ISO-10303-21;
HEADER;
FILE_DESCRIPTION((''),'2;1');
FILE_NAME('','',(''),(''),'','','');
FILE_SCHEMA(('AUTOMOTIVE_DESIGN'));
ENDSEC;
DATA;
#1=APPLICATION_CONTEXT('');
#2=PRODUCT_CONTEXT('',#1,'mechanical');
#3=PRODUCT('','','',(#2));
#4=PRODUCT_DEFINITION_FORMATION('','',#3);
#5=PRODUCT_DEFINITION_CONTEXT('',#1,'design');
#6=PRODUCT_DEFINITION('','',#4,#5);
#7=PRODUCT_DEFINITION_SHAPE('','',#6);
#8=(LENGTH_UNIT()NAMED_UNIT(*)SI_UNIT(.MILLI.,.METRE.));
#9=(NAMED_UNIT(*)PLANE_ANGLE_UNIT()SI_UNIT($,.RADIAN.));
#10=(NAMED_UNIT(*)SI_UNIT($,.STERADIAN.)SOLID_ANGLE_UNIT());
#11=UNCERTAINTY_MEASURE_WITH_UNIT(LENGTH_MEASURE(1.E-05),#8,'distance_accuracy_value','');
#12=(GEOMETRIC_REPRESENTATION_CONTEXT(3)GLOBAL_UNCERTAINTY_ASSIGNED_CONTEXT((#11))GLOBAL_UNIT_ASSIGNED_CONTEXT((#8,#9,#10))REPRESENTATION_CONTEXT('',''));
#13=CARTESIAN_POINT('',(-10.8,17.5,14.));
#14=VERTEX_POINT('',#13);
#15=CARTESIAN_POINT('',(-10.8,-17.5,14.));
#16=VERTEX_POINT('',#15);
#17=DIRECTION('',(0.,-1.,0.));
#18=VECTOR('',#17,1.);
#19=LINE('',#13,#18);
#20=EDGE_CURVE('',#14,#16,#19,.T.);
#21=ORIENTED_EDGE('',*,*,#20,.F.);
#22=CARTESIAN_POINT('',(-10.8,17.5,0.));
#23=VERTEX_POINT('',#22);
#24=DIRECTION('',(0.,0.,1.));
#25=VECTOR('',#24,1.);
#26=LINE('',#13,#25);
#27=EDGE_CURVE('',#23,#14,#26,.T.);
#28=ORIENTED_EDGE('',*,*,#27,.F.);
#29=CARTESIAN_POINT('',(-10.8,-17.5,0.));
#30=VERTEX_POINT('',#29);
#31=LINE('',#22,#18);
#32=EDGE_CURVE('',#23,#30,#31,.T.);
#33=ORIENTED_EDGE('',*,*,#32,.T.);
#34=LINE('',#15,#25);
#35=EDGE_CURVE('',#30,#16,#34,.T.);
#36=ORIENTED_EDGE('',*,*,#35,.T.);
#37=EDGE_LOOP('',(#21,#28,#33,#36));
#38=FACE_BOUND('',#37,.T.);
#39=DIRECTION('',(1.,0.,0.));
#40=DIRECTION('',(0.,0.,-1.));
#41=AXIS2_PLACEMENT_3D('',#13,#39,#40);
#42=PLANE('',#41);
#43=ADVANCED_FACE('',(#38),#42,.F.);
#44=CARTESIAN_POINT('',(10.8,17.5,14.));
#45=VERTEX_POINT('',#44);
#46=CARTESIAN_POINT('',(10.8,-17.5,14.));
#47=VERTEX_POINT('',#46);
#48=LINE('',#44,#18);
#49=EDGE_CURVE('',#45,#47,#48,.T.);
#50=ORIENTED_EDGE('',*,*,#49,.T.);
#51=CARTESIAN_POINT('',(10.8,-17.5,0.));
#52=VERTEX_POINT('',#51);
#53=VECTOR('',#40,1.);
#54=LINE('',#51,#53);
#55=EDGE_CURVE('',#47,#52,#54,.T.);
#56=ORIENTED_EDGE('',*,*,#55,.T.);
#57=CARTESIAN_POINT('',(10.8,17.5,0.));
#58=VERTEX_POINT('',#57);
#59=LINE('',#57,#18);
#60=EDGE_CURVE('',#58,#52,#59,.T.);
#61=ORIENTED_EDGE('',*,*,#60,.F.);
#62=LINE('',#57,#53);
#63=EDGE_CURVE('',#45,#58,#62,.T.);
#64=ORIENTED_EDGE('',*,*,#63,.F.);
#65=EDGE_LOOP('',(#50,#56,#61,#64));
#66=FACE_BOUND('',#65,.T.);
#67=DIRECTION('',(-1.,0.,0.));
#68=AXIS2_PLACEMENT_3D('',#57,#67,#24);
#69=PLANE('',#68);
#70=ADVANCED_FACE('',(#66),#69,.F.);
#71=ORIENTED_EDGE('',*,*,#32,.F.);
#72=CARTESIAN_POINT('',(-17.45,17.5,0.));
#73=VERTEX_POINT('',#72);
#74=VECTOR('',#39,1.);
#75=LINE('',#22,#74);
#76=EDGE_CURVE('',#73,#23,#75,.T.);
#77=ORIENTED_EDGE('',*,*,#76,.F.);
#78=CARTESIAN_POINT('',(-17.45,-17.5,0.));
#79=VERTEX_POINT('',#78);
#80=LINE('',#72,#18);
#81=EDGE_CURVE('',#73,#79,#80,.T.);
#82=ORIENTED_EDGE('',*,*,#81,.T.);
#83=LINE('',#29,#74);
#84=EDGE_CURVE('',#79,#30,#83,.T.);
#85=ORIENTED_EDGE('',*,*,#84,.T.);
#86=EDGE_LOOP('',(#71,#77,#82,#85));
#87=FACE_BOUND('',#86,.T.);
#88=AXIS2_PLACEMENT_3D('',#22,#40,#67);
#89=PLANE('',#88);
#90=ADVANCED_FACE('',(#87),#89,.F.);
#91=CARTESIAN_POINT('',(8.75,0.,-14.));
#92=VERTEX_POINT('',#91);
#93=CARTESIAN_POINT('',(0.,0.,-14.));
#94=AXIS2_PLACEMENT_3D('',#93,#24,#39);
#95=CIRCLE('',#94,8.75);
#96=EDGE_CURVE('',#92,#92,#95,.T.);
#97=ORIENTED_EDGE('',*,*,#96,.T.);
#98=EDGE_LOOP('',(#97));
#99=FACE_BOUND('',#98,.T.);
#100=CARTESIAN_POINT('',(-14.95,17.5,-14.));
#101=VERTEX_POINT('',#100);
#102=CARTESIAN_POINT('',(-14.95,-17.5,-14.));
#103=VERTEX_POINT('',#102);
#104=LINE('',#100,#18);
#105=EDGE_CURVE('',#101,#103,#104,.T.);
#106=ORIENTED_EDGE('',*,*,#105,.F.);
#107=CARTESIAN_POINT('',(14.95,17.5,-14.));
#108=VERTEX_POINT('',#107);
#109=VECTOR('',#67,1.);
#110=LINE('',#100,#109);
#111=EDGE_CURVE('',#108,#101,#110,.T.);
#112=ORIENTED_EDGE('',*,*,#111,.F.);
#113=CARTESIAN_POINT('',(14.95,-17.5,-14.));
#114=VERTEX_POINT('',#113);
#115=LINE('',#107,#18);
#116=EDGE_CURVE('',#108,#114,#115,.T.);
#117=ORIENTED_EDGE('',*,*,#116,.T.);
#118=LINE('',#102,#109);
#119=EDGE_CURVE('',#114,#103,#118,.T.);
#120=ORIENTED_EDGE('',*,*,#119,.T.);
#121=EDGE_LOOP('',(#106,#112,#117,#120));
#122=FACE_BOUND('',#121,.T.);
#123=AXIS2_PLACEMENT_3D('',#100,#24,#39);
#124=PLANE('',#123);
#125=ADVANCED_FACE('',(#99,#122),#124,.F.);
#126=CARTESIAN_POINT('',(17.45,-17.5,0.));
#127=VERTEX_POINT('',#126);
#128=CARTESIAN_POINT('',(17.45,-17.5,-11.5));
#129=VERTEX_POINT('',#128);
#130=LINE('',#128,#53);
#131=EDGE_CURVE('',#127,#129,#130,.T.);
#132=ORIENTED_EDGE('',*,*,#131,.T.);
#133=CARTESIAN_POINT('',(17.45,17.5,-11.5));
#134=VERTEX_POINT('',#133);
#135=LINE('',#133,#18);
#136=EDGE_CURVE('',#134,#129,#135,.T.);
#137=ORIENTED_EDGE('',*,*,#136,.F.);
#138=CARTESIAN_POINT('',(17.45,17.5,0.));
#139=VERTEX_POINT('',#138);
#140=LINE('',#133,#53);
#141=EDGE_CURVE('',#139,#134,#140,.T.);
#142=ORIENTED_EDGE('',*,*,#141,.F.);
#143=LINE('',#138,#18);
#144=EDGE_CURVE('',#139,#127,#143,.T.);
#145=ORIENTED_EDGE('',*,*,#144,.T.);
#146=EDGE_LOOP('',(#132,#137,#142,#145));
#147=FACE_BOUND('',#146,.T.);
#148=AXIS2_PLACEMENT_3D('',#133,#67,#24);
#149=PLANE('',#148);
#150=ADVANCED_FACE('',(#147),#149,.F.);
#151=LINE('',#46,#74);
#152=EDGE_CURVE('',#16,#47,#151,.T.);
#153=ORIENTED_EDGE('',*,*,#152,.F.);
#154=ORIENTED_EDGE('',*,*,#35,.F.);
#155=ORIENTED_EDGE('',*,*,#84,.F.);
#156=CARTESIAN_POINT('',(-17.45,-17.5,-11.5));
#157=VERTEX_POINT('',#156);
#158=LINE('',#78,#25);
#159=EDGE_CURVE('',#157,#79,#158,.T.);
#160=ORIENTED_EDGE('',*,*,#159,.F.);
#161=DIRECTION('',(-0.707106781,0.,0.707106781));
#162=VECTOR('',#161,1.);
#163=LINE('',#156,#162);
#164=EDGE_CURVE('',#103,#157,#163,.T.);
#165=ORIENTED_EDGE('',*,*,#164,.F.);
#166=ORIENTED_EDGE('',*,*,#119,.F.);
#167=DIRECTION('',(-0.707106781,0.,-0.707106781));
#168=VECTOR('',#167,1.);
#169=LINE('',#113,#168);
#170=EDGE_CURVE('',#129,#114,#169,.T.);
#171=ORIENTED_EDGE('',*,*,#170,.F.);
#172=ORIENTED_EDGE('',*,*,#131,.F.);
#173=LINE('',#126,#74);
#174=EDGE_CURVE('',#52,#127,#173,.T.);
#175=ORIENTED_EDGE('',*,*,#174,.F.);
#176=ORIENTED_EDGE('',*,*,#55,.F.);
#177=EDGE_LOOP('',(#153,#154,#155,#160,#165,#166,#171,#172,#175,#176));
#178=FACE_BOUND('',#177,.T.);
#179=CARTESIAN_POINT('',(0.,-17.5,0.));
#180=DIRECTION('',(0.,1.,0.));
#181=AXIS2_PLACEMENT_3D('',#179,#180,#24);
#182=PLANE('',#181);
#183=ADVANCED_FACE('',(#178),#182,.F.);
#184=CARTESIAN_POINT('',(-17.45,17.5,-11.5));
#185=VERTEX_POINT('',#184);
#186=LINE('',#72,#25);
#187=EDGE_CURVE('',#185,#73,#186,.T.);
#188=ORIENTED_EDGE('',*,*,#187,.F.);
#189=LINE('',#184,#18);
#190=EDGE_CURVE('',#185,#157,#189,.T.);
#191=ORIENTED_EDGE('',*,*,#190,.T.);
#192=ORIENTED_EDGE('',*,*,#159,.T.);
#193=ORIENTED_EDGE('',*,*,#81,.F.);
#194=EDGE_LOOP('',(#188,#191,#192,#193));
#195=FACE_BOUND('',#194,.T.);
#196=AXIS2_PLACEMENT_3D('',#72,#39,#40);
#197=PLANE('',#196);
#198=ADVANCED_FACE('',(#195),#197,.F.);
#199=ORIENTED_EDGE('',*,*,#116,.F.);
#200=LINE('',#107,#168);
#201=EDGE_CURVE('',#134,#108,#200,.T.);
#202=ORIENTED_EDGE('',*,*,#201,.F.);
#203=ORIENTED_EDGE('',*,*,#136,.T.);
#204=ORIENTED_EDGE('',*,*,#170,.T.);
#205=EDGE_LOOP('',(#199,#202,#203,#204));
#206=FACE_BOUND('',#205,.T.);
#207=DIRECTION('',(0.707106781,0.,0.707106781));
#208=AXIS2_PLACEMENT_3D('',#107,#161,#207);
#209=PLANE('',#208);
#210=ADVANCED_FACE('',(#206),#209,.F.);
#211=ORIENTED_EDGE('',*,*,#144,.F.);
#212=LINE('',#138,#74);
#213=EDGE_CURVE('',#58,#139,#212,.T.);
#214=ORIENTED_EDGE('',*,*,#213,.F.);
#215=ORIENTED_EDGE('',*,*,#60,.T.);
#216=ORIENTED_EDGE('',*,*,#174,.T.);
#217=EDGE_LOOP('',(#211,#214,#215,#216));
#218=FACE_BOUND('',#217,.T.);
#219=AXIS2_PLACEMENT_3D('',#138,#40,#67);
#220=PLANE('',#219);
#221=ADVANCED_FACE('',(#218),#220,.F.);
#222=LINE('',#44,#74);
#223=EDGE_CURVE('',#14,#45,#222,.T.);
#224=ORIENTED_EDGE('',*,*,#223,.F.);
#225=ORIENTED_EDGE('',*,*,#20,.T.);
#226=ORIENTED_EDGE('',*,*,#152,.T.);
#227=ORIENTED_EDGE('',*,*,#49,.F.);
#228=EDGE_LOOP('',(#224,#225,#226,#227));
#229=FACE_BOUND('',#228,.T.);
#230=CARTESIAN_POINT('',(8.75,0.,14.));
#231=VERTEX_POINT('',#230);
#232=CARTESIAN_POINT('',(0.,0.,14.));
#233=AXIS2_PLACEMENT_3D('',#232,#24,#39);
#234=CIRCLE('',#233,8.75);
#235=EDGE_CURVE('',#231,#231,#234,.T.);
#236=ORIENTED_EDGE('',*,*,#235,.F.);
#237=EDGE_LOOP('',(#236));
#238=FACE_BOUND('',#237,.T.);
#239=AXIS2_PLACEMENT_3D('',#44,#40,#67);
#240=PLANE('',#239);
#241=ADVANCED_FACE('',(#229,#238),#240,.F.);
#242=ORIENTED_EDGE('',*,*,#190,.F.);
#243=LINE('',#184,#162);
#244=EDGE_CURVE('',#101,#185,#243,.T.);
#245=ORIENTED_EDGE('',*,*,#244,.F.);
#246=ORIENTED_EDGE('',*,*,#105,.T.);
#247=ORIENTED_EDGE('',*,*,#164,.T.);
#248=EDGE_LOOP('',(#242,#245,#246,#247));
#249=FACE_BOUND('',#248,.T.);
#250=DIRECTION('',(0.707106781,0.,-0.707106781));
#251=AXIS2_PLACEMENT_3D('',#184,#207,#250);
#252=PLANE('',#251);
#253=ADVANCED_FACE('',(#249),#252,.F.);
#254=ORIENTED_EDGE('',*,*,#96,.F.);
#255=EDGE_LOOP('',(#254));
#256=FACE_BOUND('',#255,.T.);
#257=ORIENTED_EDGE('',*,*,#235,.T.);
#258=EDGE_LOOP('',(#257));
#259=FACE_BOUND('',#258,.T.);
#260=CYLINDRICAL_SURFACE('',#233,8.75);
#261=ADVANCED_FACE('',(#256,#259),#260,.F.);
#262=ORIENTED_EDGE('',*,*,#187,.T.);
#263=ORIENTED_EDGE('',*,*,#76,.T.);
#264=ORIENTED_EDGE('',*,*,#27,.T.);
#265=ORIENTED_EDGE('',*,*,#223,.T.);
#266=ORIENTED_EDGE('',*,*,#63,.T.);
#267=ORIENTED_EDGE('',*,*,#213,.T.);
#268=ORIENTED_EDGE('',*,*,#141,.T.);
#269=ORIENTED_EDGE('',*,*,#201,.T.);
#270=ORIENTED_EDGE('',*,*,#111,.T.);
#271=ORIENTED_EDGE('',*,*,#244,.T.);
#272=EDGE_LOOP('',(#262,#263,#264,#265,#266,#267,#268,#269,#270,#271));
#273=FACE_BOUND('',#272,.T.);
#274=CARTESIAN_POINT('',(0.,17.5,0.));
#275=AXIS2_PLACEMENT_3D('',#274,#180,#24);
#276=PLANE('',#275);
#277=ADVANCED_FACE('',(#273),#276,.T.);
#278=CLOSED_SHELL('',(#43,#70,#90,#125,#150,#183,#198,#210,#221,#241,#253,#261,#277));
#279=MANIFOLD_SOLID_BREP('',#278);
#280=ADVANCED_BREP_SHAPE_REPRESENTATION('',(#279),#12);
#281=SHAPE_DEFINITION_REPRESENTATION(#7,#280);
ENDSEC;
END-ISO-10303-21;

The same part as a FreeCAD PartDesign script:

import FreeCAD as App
import Part
import Sketcher

V = App.Vector
Q = App.Units.Quantity

doc = App.newDocument("Part")
body = doc.addObject("PartDesign::Body", "Body")

sketch1 = doc.addObject("Sketcher::SketchObject", "Sketch")
body.addObject(sketch1)
sketch1.AttachmentSupport = (doc.XZ_Plane, [""])
sketch1.MapMode = "FlatFace"
sketch1.addGeometry(Part.LineSegment(V(-17.4, 0, 0), V(-10.8, 0, 0)), False)
sketch1.addGeometry(Part.LineSegment(V(-10.8, 0, 0), V(-10.8, 14, 0)), False)
sketch1.addGeometry(Part.LineSegment(V(-10.8, 14, 0), V(10.8, 14, 0)), False)
sketch1.addGeometry(Part.LineSegment(V(10.8, 14, 0), V(10.8, 0, 0)), False)
sketch1.addGeometry(Part.LineSegment(V(10.8, 0, 0), V(17.4, 0, 0)), False)
sketch1.addGeometry(Part.LineSegment(V(17.4, 0, 0), V(17.4, -11.5, 0)), False)
sketch1.addGeometry(Part.LineSegment(V(17.4, -11.5, 0), V(14.9, -14, 0)), False)
sketch1.addGeometry(Part.LineSegment(V(14.9, -14, 0), V(-14.9, -14, 0)), False)
sketch1.addGeometry(Part.LineSegment(V(-14.9, -14, 0), V(-17.4, -11.5, 0)), False)
sketch1.addGeometry(Part.LineSegment(V(-17.4, -11.5, 0), V(-17.4, 0, 0)), False)
sketch1.addConstraint(Sketcher.Constraint("Coincident", 0, 2, 1, 1))
sketch1.addConstraint(Sketcher.Constraint("Coincident", 1, 2, 2, 1))
sketch1.addConstraint(Sketcher.Constraint("Coincident", 2, 2, 3, 1))
sketch1.addConstraint(Sketcher.Constraint("Coincident", 3, 2, 4, 1))
sketch1.addConstraint(Sketcher.Constraint("Coincident", 4, 2, 5, 1))
sketch1.addConstraint(Sketcher.Constraint("Coincident", 5, 2, 6, 1))
sketch1.addConstraint(Sketcher.Constraint("Coincident", 6, 2, 7, 1))
sketch1.addConstraint(Sketcher.Constraint("Coincident", 7, 2, 8, 1))
sketch1.addConstraint(Sketcher.Constraint("Coincident", 8, 2, 9, 1))
sketch1.addConstraint(Sketcher.Constraint("Coincident", 9, 2, 0, 1))
sketch1.addConstraint(Sketcher.Constraint("Horizontal", 0))
sketch1.addConstraint(Sketcher.Constraint("Vertical", 1))
sketch1.addConstraint(Sketcher.Constraint("Horizontal", 2))
sketch1.addConstraint(Sketcher.Constraint("Vertical", 3))
sketch1.addConstraint(Sketcher.Constraint("Horizontal", 4))
sketch1.addConstraint(Sketcher.Constraint("Vertical", 5))
sketch1.addConstraint(Sketcher.Constraint("Horizontal", 7))
sketch1.addConstraint(Sketcher.Constraint("Vertical", 9))
sketch1.addConstraint(Sketcher.Constraint("Symmetric", 0, 2, 3, 2, -1, 1))
sketch1.addConstraint(Sketcher.Constraint("Symmetric", 5, 2, 8, 2, -2))
sketch1.addConstraint(Sketcher.Constraint("PointOnObject", 0, 2, -1))
sketch1.addConstraint(Sketcher.Constraint("Perpendicular", 6, 8))
sketch1.addConstraint(Sketcher.Constraint("Equal", 6, 8))
sketch1.addConstraint(Sketcher.Constraint("DistanceY", 1, 1, 1, 2, Q("14 mm")))
sketch1.addConstraint(Sketcher.Constraint("DistanceX", 2, 1, 2, 2, Q("21.6 mm")))
sketch1.addConstraint(Sketcher.Constraint("DistanceX", 7, 2, 7, 1, Q("29.9 mm")))
sketch1.addConstraint(Sketcher.Constraint("DistanceY", 5, 2, 5, 1, Q("11.5 mm")))
sketch1.addConstraint(Sketcher.Constraint("DistanceY", 6, 2, -1, 1, Q("14 mm")))
pad1 = doc.addObject("PartDesign::Pad", "Pad")
body.addObject(pad1)
pad1.Profile = sketch1
pad1.Length = 35
pad1.Midplane = True

sketch2 = doc.addObject("Sketcher::SketchObject", "Sketch001")
body.addObject(sketch2)
sketch2.AttachmentSupport = (doc.XY_Plane, [""])
sketch2.MapMode = "FlatFace"
sketch2.AttachmentOffset = App.Placement(V(0, 0, 14), App.Rotation())
sketch2.addGeometry(Part.Circle(V(0, 0, 0), V(0, 0, 1), 9), False)
sketch2.addConstraint(Sketcher.Constraint("Coincident", 0, 3, -1, 1))
sketch2.addConstraint(Sketcher.Constraint("Diameter", 0, Q("17.5 mm")))
doc.recompute()
hole = doc.addObject("PartDesign::Hole", "Hole")
body.addObject(hole)
hole.Profile = sketch2
hole.ThreadType = "None"
hole.Diameter = 17.5
hole.DepthType = "ThroughAll"

doc.recompute()
